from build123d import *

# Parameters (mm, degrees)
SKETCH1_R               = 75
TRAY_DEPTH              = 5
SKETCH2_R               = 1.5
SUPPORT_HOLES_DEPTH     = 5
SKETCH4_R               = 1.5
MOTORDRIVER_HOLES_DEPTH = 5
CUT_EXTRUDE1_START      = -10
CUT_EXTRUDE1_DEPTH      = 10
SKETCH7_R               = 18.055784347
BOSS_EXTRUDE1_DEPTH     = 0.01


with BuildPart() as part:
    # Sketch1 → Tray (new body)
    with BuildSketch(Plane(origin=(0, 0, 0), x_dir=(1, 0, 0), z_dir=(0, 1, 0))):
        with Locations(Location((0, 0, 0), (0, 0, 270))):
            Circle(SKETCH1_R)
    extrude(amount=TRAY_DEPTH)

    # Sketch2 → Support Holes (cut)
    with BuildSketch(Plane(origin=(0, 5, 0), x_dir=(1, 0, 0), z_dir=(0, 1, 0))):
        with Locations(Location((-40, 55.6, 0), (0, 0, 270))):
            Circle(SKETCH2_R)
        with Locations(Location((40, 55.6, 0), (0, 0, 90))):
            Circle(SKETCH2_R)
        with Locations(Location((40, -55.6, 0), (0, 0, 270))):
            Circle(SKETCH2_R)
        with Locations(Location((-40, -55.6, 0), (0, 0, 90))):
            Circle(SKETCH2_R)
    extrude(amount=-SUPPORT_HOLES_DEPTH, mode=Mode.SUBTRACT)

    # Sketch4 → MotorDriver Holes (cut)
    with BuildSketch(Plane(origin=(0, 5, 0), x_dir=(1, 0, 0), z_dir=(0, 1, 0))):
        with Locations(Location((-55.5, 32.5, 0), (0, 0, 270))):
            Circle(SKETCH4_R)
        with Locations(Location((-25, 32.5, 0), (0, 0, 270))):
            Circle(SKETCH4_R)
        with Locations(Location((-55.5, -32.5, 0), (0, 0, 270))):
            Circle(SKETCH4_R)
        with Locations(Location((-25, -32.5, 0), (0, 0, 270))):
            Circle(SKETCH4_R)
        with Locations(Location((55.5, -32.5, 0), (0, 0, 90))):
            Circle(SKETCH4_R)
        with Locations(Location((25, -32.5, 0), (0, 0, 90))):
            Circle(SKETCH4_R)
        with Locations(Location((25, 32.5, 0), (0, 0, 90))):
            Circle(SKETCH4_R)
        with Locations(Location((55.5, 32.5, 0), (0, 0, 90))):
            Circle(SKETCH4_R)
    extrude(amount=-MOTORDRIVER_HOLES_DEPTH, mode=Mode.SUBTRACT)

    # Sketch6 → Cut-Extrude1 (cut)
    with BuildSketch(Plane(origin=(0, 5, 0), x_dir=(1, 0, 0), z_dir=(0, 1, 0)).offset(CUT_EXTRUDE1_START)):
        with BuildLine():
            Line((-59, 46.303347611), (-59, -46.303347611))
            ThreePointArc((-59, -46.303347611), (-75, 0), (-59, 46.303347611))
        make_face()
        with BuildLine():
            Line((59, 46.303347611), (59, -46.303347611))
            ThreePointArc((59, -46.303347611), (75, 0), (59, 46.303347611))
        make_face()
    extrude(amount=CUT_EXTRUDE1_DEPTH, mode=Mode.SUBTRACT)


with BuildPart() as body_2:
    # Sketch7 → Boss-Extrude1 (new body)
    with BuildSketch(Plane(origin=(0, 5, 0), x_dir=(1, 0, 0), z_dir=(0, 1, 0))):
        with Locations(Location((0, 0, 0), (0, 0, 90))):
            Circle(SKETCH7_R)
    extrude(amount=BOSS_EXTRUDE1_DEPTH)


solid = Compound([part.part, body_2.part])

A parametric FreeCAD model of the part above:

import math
import FreeCAD as App
import Part
import Sketcher
from FreeCAD import Vector
Q = App.Units.Quantity

doc = App.newDocument("Part")
body = doc.addObject("PartDesign::Body", "Body")

# Sketch on XZ plane
sketch1 = doc.addObject("Sketcher::SketchObject", "Sketch")
body.addObject(sketch1)
sketch1.AttachmentSupport = (doc.XZ_Plane, [""])
sketch1.MapMode = "FlatFace"
sketch1.addGeometry(Part.Circle(Vector(0, 0, 0), Vector(0, 0, 1), 75), False)
sketch1.addConstraint(Sketcher.Constraint("Coincident", 0, 3, -1, 1))
sketch1.addConstraint(Sketcher.Constraint("Diameter", 0, Q("150 mm")))
pad1 = doc.addObject("PartDesign::Pad", "Pad")
body.addObject(pad1)
pad1.Profile = sketch1
pad1.Length = 5
pad1.Reversed = True

# Sketch on XZ plane
sketch2 = doc.addObject("Sketcher::SketchObject", "Sketch001")
body.addObject(sketch2)
sketch2.AttachmentSupport = (doc.XZ_Plane, [""])
sketch2.MapMode = "FlatFace"
sketch2.AttachmentOffset = App.Placement(Vector(0, 0, -5), App.Rotation())
sketch2.addGeometry(Part.Circle(Vector(-40, -55.6, 0), Vector(0, 0, 1), 1.5), False)
sketch2.addGeometry(Part.Circle(Vector(40, -55.6, 0), Vector(0, 0, 1), 1.5), False)
sketch2.addGeometry(Part.Circle(Vector(40, 55.6, 0), Vector(0, 0, 1), 1.5), False)
sketch2.addGeometry(Part.Circle(Vector(-40, 55.6, 0), Vector(0, 0, 1), 1.5), False)
sketch2.addConstraint(Sketcher.Constraint("Equal", 0, 1))
sketch2.addConstraint(Sketcher.Constraint("Equal", 1, 2))
sketch2.addConstraint(Sketcher.Constraint("Equal", 2, 3))
sketch2.addConstraint(Sketcher.Constraint("Symmetric", 0, 3, 2, 3, -1, 1))
sketch2.addConstraint(Sketcher.Constraint("Symmetric", 1, 3, 3, 3, -1, 1))
sketch2.addConstraint(Sketcher.Constraint("Symmetric", 0, 3, 1, 3, -2))
sketch2.addConstraint(Sketcher.Constraint("Diameter", 0, Q("3 mm")))
sketch2.addConstraint(Sketcher.Constraint("DistanceX", 0, 3, -1, 1, Q("40 mm")))
sketch2.addConstraint(Sketcher.Constraint("DistanceY", 0, 3, -1, 1, Q("55.6 mm")))
pocket1 = doc.addObject("PartDesign::Pocket", "Pocket")
body.addObject(pocket1)
pocket1.Profile = sketch2
pocket1.Length = 5
pocket1.Reversed = True

# Sketch on XZ plane
sketch3 = doc.addObject("Sketcher::SketchObject", "Sketch002")
body.addObject(sketch3)
sketch3.AttachmentSupport = (doc.XZ_Plane, [""])
sketch3.MapMode = "FlatFace"
sketch3.AttachmentOffset = App.Placement(Vector(0, 0, -5), App.Rotation())
sketch3.addGeometry(Part.Circle(Vector(-55.5, -32.5, 0), Vector(0, 0, 1), 1.5), False)
sketch3.addGeometry(Part.Circle(Vector(-25, -32.5, 0), Vector(0, 0, 1), 1.5), False)
sketch3.addGeometry(Part.Circle(Vector(-55.5, 32.5, 0), Vector(0, 0, 1), 1.5), False)
sketch3.addGeometry(Part.Circle(Vector(-25, 32.5, 0), Vector(0, 0, 1), 1.5), False)
sketch3.addGeometry(Part.Circle(Vector(55.5, 32.5, 0), Vector(0, 0, 1), 1.5), False)
sketch3.addGeometry(Part.Circle(Vector(25, 32.5, 0), Vector(0, 0, 1), 1.5), False)
sketch3.addGeometry(Part.Circle(Vector(25, -32.5, 0), Vector(0, 0, 1), 1.5), False)
sketch3.addGeometry(Part.Circle(Vector(55.5, -32.5, 0), Vector(0, 0, 1), 1.5), False)
sketch3.addConstraint(Sketcher.Constraint("Equal", 0, 1))
sketch3.addConstraint(Sketcher.Constraint("Equal", 1, 2))
sketch3.addConstraint(Sketcher.Constraint("Equal", 2, 3))
sketch3.addConstraint(Sketcher.Constraint("Equal", 3, 4))
sketch3.addConstraint(Sketcher.Constraint("Equal", 4, 5))
sketch3.addConstraint(Sketcher.Constraint("Equal", 5, 6))
sketch3.addConstraint(Sketcher.Constraint("Equal", 6, 7))
sketch3.addConstraint(Sketcher.Constraint("Symmetric", 0, 3, 4, 3, -1, 1))
sketch3.addConstraint(Sketcher.Constraint("Symmetric", 1, 3, 5, 3, -1, 1))
sketch3.addConstraint(Sketcher.Constraint("Symmetric", 3, 3, 6, 3, -1, 1))
sketch3.addConstraint(Sketcher.Constraint("Symmetric", 2, 3, 7, 3, -1, 1))
sketch3.addConstraint(Sketcher.Constraint("Symmetric", 2, 3, 4, 3, -2))
sketch3.addConstraint(Sketcher.Constraint("Symmetric", 3, 3, 5, 3, -2))
sketch3.addConstraint(Sketcher.Constraint("Horizontal", 0, 3, 1, 3))
sketch3.addConstraint(Sketcher.Constraint("Diameter", 0, Q("3 mm")))
sketch3.addConstraint(Sketcher.Constraint("DistanceX", 1, 3, -1, 1, Q("25 mm")))
sketch3.addConstraint(Sketcher.Constraint("DistanceY", 0, 3, 2, 3, Q("65 mm")))
sketch3.addConstraint(Sketcher.Constraint("DistanceX", 2, 3, 4, 3, Q("111 mm")))
pocket2 = doc.addObject("PartDesign::Pocket", "Pocket001")
body.addObject(pocket2)
pocket2.Profile = sketch3
pocket2.Length = 5
pocket2.Reversed = True

# Sketch on XZ plane
sketch4 = doc.addObject("Sketcher::SketchObject", "Sketch003")
body.addObject(sketch4)
sketch4.AttachmentSupport = (doc.XZ_Plane, [""])
sketch4.MapMode = "FlatFace"
sketch4.AttachmentOffset = App.Placement(Vector(0, 0, 5), App.Rotation())
sketch4.addGeometry(Part.LineSegment(Vector(-59, 46, 0), Vector(-59, -46, 0)), False)
sketch4.addGeometry(Part.ArcOfCircle(Part.Circle(Vector(0, 0, 0), Vector(0, 0, 1), 75), math.radians(142), math.radians(218)), False)
sketch4.addGeometry(Part.LineSegment(Vector(59, -46, 0), Vector(59, 46, 0)), False)
sketch4.addGeometry(Part.ArcOfCircle(Part.Circle(Vector(0, 0, 0), Vector(0, 0, 1), 75), math.radians(-38), math.radians(38)), False)
sketch4.addConstraint(Sketcher.Constraint("Coincident", 0, 1, 1, 1))
sketch4.addConstraint(Sketcher.Constraint("Coincident", 1, 2, 0, 2))
sketch4.addConstraint(Sketcher.Constraint("Coincident", 2, 1, 3, 1))
sketch4.addConstraint(Sketcher.Constraint("Coincident", 3, 2, 2, 2))
sketch4.addConstraint(Sketcher.Constraint("Vertical", 0))
sketch4.addConstraint(Sketcher.Constraint("Vertical", 2))
sketch4.addConstraint(Sketcher.Constraint("Coincident", 1, 3, -1, 1))
sketch4.addConstraint(Sketcher.Constraint("Coincident", 3, 3, -1, 1))
sketch4.addConstraint(Sketcher.Constraint("Equal", 1, 3))
sketch4.addConstraint(Sketcher.Constraint("Horizontal", 1, 2, 2, 1))
sketch4.addConstraint(Sketcher.Constraint("Radius", 1, Q("75 mm")))
sketch4.addConstraint(Sketcher.Constraint("DistanceX", 0, 1, -1, 1, Q("59 mm")))
pocket3 = doc.addObject("PartDesign::Pocket", "Pocket002")
body.addObject(pocket3)
pocket3.Profile = sketch4
pocket3.Length = 10
body2 = doc.addObject("PartDesign::Body", "Body001")

# Sketch on XZ plane
sketch5 = doc.addObject("Sketcher::SketchObject", "Sketch004")
body2.addObject(sketch5)
sketch5.AttachmentSupport = (doc.getObject("XZ_Plane001"), [""])
sketch5.MapMode = "FlatFace"
sketch5.AttachmentOffset = App.Placement(Vector(0, 0, -5), App.Rotation())
sketch5.addGeometry(Part.Circle(Vector(0, 0, 0), Vector(0, 0, 1), 18), False)
sketch5.addConstraint(Sketcher.Constraint("Coincident", 0, 3, -1, 1))
sketch5.addConstraint(Sketcher.Constraint("Diameter", 0, Q("36.111569 mm")))
pad2 = doc.addObject("PartDesign::Pad", "Pad001")
body2.addObject(pad2)
pad2.Profile = sketch5
pad2.Length = 0.01
pad2.Reversed = True

doc.recompute()
